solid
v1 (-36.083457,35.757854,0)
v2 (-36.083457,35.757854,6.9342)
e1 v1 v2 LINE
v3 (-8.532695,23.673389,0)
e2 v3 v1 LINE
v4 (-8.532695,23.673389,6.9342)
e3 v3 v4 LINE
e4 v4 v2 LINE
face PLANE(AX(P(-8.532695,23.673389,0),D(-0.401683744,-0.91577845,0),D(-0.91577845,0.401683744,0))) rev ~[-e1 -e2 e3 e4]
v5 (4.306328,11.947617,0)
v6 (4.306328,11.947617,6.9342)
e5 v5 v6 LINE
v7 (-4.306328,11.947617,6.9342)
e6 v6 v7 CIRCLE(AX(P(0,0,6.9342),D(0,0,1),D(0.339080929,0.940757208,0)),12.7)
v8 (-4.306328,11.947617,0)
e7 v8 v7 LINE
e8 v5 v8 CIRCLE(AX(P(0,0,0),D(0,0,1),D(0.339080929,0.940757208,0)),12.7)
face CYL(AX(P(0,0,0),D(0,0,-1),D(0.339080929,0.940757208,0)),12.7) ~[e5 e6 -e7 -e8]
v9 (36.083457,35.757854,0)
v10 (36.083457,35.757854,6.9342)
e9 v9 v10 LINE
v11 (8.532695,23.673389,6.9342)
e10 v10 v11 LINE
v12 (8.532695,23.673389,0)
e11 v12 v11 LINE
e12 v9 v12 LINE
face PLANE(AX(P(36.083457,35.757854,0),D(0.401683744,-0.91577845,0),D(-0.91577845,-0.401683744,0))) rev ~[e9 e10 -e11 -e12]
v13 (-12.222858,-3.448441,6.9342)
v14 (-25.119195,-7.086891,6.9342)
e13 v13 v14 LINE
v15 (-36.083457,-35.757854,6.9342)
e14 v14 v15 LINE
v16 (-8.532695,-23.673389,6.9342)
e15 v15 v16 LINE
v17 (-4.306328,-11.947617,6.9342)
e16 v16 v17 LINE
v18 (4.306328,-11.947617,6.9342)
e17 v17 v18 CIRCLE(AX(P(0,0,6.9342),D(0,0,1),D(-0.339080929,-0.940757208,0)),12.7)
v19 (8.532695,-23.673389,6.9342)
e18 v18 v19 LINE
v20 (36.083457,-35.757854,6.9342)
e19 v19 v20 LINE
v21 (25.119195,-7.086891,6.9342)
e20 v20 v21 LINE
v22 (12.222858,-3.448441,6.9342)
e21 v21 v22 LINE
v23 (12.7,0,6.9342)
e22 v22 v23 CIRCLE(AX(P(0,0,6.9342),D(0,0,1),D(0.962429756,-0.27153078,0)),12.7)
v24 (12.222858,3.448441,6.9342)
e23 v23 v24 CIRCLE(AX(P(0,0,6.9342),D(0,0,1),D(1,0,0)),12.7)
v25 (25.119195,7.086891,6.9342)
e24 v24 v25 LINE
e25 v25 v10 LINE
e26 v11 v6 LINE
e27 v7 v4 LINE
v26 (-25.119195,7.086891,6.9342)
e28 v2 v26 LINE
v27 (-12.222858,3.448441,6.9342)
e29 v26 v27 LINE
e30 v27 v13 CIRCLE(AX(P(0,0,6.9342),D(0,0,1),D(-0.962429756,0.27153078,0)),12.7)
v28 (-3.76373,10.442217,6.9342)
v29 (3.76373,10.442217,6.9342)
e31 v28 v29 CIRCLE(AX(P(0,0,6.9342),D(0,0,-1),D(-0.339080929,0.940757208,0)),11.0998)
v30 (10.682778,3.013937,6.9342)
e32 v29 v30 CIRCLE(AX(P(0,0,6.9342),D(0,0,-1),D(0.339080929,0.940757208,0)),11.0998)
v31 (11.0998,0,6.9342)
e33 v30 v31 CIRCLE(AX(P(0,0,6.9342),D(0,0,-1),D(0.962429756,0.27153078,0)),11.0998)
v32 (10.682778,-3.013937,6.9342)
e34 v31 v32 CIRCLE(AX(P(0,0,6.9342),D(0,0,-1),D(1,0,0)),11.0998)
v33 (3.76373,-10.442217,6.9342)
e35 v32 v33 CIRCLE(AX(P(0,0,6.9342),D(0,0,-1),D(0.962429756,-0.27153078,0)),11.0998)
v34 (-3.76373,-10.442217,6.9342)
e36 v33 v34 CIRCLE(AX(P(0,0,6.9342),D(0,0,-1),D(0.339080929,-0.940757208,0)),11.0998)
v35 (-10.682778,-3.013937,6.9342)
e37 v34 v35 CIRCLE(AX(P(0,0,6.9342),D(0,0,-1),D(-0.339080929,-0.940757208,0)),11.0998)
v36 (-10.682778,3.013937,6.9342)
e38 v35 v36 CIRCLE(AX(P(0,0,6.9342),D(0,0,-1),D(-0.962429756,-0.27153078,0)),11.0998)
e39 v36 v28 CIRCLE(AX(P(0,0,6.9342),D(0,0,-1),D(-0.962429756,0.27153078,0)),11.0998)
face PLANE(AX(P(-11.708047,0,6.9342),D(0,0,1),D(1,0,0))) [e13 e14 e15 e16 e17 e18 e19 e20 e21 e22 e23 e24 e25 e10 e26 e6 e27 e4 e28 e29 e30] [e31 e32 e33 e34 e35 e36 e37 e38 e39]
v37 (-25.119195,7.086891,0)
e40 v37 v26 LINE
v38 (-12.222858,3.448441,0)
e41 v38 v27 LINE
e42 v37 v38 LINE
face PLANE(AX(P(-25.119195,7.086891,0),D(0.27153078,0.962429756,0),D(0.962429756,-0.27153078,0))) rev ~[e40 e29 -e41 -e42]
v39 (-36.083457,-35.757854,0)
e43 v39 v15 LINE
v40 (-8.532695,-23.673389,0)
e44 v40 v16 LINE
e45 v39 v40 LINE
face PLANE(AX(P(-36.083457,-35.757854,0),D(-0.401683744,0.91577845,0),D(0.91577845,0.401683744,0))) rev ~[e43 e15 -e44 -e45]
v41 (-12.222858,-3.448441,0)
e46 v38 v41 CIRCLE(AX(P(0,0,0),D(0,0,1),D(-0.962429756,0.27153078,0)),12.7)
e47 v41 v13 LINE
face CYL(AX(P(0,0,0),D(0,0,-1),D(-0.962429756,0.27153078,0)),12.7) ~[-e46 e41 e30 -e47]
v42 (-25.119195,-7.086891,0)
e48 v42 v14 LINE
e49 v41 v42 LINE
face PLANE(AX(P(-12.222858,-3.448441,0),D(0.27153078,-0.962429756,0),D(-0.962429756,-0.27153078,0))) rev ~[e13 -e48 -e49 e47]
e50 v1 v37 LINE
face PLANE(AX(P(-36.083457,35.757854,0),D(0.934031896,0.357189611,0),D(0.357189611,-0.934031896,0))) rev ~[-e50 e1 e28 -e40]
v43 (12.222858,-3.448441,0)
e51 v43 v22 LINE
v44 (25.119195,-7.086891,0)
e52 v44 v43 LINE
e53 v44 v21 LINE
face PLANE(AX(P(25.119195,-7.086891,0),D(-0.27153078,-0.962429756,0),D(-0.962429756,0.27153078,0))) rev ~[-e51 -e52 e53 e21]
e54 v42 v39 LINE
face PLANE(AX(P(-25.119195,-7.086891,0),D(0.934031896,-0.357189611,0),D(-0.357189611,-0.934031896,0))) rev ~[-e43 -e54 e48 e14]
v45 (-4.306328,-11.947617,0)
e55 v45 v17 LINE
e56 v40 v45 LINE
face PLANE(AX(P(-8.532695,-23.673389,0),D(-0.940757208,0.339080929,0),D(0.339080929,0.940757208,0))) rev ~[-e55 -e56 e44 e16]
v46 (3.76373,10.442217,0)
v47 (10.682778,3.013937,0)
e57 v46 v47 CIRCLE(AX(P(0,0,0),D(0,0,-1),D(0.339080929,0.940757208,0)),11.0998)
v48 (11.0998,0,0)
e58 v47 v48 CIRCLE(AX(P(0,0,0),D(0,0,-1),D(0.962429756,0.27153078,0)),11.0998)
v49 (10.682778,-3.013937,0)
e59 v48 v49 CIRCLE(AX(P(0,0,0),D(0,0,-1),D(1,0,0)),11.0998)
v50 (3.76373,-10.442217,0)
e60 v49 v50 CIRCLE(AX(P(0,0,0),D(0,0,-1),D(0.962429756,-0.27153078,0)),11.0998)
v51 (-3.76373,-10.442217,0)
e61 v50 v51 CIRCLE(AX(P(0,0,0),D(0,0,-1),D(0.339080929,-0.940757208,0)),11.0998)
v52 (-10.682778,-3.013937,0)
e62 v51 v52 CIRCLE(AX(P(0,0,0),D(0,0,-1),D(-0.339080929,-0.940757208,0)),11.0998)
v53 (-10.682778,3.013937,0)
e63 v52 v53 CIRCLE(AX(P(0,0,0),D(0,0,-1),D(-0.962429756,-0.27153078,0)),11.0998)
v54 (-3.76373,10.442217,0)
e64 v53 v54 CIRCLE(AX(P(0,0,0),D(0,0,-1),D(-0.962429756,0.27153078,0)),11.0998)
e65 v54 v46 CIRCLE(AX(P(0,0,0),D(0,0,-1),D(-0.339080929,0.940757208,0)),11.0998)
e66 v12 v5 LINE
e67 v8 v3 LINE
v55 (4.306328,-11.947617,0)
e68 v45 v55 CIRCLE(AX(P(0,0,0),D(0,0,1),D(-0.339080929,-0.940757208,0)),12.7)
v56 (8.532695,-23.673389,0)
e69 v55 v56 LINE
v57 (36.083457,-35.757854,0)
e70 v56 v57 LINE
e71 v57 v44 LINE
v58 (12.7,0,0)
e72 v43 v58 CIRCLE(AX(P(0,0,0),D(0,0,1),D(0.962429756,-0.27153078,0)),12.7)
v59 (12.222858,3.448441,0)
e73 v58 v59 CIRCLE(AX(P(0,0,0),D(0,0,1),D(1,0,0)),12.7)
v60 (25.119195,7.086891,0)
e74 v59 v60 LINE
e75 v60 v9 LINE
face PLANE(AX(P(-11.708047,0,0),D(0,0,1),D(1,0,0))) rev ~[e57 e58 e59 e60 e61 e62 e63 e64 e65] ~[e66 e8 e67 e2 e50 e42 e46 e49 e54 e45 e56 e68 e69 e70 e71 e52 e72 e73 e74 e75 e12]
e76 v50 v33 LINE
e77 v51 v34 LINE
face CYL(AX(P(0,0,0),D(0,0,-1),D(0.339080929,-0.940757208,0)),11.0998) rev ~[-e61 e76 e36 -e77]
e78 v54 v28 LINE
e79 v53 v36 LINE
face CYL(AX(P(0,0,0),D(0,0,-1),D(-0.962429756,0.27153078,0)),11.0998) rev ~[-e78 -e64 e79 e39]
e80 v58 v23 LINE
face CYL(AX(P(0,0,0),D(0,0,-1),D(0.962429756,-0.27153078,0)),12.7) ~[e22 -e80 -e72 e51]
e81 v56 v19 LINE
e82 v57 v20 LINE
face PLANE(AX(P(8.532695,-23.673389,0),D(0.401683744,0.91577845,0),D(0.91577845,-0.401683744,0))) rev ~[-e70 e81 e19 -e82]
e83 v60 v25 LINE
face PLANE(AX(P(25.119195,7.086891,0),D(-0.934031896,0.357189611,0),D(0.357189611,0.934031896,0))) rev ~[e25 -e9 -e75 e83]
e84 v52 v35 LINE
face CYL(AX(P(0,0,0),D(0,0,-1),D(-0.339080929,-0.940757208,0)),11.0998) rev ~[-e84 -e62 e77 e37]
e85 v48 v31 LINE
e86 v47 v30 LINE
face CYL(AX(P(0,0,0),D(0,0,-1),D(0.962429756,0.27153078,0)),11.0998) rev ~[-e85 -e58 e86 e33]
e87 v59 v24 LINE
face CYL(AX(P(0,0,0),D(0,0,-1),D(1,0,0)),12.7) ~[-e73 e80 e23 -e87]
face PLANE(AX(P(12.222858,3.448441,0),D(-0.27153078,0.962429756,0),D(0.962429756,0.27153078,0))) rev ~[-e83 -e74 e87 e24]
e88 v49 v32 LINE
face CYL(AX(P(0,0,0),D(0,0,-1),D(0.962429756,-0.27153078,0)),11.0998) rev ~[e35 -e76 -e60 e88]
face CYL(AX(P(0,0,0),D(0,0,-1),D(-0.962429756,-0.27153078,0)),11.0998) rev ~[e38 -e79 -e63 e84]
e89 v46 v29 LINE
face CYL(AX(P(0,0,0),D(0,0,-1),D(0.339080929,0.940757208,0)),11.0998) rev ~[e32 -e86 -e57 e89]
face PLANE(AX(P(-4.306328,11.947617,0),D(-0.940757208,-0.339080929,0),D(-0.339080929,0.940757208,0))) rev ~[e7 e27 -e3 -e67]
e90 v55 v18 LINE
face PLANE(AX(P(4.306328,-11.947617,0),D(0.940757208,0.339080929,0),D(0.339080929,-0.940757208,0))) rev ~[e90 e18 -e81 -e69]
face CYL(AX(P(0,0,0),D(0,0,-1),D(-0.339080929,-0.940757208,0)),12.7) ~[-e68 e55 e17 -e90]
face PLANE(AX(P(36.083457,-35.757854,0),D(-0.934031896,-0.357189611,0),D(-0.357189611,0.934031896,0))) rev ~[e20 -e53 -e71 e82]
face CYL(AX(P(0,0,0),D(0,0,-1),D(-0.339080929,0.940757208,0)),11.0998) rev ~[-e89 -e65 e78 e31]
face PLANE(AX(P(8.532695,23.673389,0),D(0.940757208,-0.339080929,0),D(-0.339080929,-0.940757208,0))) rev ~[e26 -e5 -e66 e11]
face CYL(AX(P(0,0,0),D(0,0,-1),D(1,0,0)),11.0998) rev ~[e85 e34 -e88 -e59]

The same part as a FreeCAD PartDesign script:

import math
import FreeCAD as App
import Part
import Sketcher
from FreeCAD import Vector
Q = App.Units.Quantity

doc = App.newDocument("Part")
params = doc.addObject("Spreadsheet::Sheet", "Params")
for row, (alias, value) in enumerate([
    ("sketch1_radius", "0.5 in"),
    ("sketch1_radius2", "0.437 in"),
    ("pad1_length", "0.273 in"),
], start=1):
    params.set(f"A{row}", alias)
    params.set(f"B{row}", "=" + value)
    params.setAlias(f"B{row}", alias)

body = doc.addObject("PartDesign::Body", "Body")

# Sketch on XY plane
sketch1 = body.newObject("Sketcher::SketchObject", "Sketch")
sketch1.AttachmentSupport = (doc.getObject("XY_Plane"), [""])
sketch1.MapMode = "FlatFace"
sketch1.addGeometry(Part.ArcOfCircle(Part.Circle(Vector(0, 0, 0), Vector(0, 0, 1), 12.7), math.radians(-15.76), math.radians(0)), False)
sketch1.addGeometry(Part.ArcOfCircle(Part.Circle(Vector(0, 0, 0), Vector(0, 0, 1), 12.7), math.radians(0), math.radians(15.76)), False)
sketch1.addGeometry(Part.LineSegment(Vector(12.2, 3.4, 0), Vector(25.1, 7.1, 0)), False)
sketch1.addGeometry(Part.LineSegment(Vector(25.1, 7.1, 0), Vector(36.1, 35.8, 0)), False)
sketch1.addGeometry(Part.LineSegment(Vector(36.1, 35.8, 0), Vector(8.5, 23.7, 0)), False)
sketch1.addGeometry(Part.LineSegment(Vector(8.5, 23.7, 0), Vector(4.3, 11.9, 0)), False)
sketch1.addGeometry(Part.ArcOfCircle(Part.Circle(Vector(0, 0, 0), Vector(0, 0, 1), 12.7), math.radians(70), math.radians(110)), False)
sketch1.addGeometry(Part.LineSegment(Vector(-4.3, 11.9, 0), Vector(-8.5, 23.7, 0)), False)
sketch1.addGeometry(Part.LineSegment(Vector(-8.5, 23.7, 0), Vector(-36.1, 35.8, 0)), False)
sketch1.addGeometry(Part.LineSegment(Vector(-36.1, 35.8, 0), Vector(-25.1, 7.1, 0)), False)
sketch1.addGeometry(Part.LineSegment(Vector(-25.1, 7.1, 0), Vector(-12.2, 3.4, 0)), False)
sketch1.addGeometry(Part.ArcOfCircle(Part.Circle(Vector(0, 0, 0), Vector(0, 0, 1), 12.7), math.radians(164), math.radians(196)), False)
sketch1.addGeometry(Part.LineSegment(Vector(-12.2, -3.4, 0), Vector(-25.1, -7.1, 0)), False)
sketch1.addGeometry(Part.LineSegment(Vector(-25.1, -7.1, 0), Vector(-36.1, -35.8, 0)), False)
sketch1.addGeometry(Part.LineSegment(Vector(-36.1, -35.8, 0), Vector(-8.5, -23.7, 0)), False)
sketch1.addGeometry(Part.LineSegment(Vector(-8.5, -23.7, 0), Vector(-4.3, -11.9, 0)), False)
sketch1.addGeometry(Part.ArcOfCircle(Part.Circle(Vector(0, 0, 0), Vector(0, 0, 1), 12.7), math.radians(-110), math.radians(-70)), False)
sketch1.addGeometry(Part.LineSegment(Vector(4.3, -11.9, 0), Vector(8.5, -23.7, 0)), False)
sketch1.addGeometry(Part.LineSegment(Vector(8.5, -23.7, 0), Vector(36.1, -35.8, 0)), False)
sketch1.addGeometry(Part.LineSegment(Vector(36.1, -35.8, 0), Vector(25.1, -7.1, 0)), False)
sketch1.addGeometry(Part.LineSegment(Vector(25.1, -7.1, 0), Vector(12.2, -3.4, 0)), False)
sketch1.addGeometry(Part.ArcOfCircle(Part.Circle(Vector(0, 0, 0), Vector(0, 0, 1), 11.1), math.radians(164), math.radians(196)), False)
sketch1.addGeometry(Part.ArcOfCircle(Part.Circle(Vector(0, 0, 0), Vector(0, 0, 1), 11.1), math.radians(110), math.radians(164)), False)
sketch1.addGeometry(Part.ArcOfCircle(Part.Circle(Vector(0, 0, 0), Vector(0, 0, 1), 11.1), math.radians(70), math.radians(110)), False)
sketch1.addGeometry(Part.ArcOfCircle(Part.Circle(Vector(0, 0, 0), Vector(0, 0, 1), 11.1), math.radians(16), math.radians(70)), False)
sketch1.addGeometry(Part.ArcOfCircle(Part.Circle(Vector(0, 0, 0), Vector(0, 0, 1), 11.1), math.radians(0), math.radians(15.76)), False)
sketch1.addGeometry(Part.ArcOfCircle(Part.Circle(Vector(0, 0, 0), Vector(0, 0, 1), 11.1), math.radians(-15.76), math.radians(0)), False)
sketch1.addGeometry(Part.ArcOfCircle(Part.Circle(Vector(0, 0, 0), Vector(0, 0, 1), 11.1), math.radians(-70), math.radians(-16)), False)
sketch1.addGeometry(Part.ArcOfCircle(Part.Circle(Vector(0, 0, 0), Vector(0, 0, 1), 11.1), math.radians(-110), math.radians(-70)), False)
sketch1.addGeometry(Part.ArcOfCircle(Part.Circle(Vector(0, 0, 0), Vector(0, 0, 1), 11.1), math.radians(-164), math.radians(-110)), False)
sketch1.addConstraint(Sketcher.Constraint("Tangent", 0, 2, 1, 1))
sketch1.addConstraint(Sketcher.Constraint("Coincident", 1, 2, 2, 1))
sketch1.addConstraint(Sketcher.Constraint("Coincident", 2, 2, 3, 1))
sketch1.addConstraint(Sketcher.Constraint("Coincident", 3, 2, 4, 1))
sketch1.addConstraint(Sketcher.Constraint("Coincident", 4, 2, 5, 1))
sketch1.addConstraint(Sketcher.Constraint("Coincident", 5, 2, 6, 1))
sketch1.addConstraint(Sketcher.Constraint("Coincident", 6, 2, 7, 1))
sketch1.addConstraint(Sketcher.Constraint("Coincident", 7, 2, 8, 1))
sketch1.addConstraint(Sketcher.Constraint("Coincident", 8, 2, 9, 1))
sketch1.addConstraint(Sketcher.Constraint("Coincident", 9, 2, 10, 1))
sketch1.addConstraint(Sketcher.Constraint("Coincident", 10, 2, 11, 1))
sketch1.addConstraint(Sketcher.Constraint("Coincident", 11, 2, 12, 1))
sketch1.addConstraint(Sketcher.Constraint("Coincident", 12, 2, 13, 1))
sketch1.addConstraint(Sketcher.Constraint("Coincident", 13, 2, 14, 1))
sketch1.addConstraint(Sketcher.Constraint("Coincident", 14, 2, 15, 1))
sketch1.addConstraint(Sketcher.Constraint("Coincident", 15, 2, 16, 1))
sketch1.addConstraint(Sketcher.Constraint("Coincident", 16, 2, 17, 1))
sketch1.addConstraint(Sketcher.Constraint("Coincident", 17, 2, 18, 1))
sketch1.addConstraint(Sketcher.Constraint("Coincident", 18, 2, 19, 1))
sketch1.addConstraint(Sketcher.Constraint("Coincident", 19, 2, 20, 1))
sketch1.addConstraint(Sketcher.Constraint("Coincident", 20, 2, 0, 1))
sketch1.addConstraint(Sketcher.Constraint("Tangent", 21, 1, 22, 2))
sketch1.addConstraint(Sketcher.Constraint("Tangent", 22, 1, 23, 2))
sketch1.addConstraint(Sketcher.Constraint("Tangent", 23, 1, 24, 2))
sketch1.addConstraint(Sketcher.Constraint("Tangent", 24, 1, 25, 2))
sketch1.addConstraint(Sketcher.Constraint("Tangent", 25, 1, 26, 2))
sketch1.addConstraint(Sketcher.Constraint("Tangent", 26, 1, 27, 2))
sketch1.addConstraint(Sketcher.Constraint("Tangent", 27, 1, 28, 2))
sketch1.addConstraint(Sketcher.Constraint("Tangent", 28, 1, 29, 2))
sketch1.addConstraint(Sketcher.Constraint("Tangent", 29, 1, 21, 2))
sketch1.addConstraint(Sketcher.Constraint("Coincident", 0, 3, -1, 1))
sketch1.addConstraint(Sketcher.Constraint("Coincident", 6, 3, -1, 1))
sketch1.addConstraint(Sketcher.Constraint("Coincident", 11, 3, -1, 1))
sketch1.addConstraint(Sketcher.Constraint("Coincident", 16, 3, -1, 1))
sketch1.addConstraint(Sketcher.Constraint("Coincident", 21, 3, -1, 1))
sketch1.addConstraint(Sketcher.Constraint("Coincident", 23, 3, -1, 1))
sketch1.addConstraint(Sketcher.Constraint("Coincident", 25, 3, -1, 1))
sketch1.addConstraint(Sketcher.Constraint("Coincident", 27, 3, -1, 1))
sketch1.addConstraint(Sketcher.Constraint("Equal", 0, 1))
sketch1.addConstraint(Sketcher.Constraint("Equal", 1, 6))
sketch1.addConstraint(Sketcher.Constraint("Equal", 6, 11))
sketch1.addConstraint(Sketcher.Constraint("Equal", 11, 16))
sketch1.addConstraint(Sketcher.Constraint("Symmetric", 2, 2, 12, 2, -1, 1))
sketch1.addConstraint(Sketcher.Constraint("Symmetric", 3, 2, 13, 2, -1, 1))
sketch1.addConstraint(Sketcher.Constraint("Symmetric", 4, 2, 14, 2, -1, 1))
sketch1.addConstraint(Sketcher.Constraint("Symmetric", 7, 2, 17, 2, -1, 1))
sketch1.addConstraint(Sketcher.Constraint("Symmetric", 8, 2, 18, 2, -1, 1))
sketch1.addConstraint(Sketcher.Constraint("Symmetric", 9, 2, 19, 2, -1, 1))
sketch1.addConstraint(Sketcher.Constraint("Symmetric", 4, 2, 7, 2, -2))
sketch1.addConstraint(Sketcher.Constraint("Symmetric", 3, 2, 8, 2, -2))
sketch1.addConstraint(Sketcher.Constraint("Symmetric", 2, 2, 9, 2, -2))
sketch1.addConstraint(Sketcher.Constraint("PointOnObject", 0, 2, -1))
sketch1.addConstraint(Sketcher.Constraint("PointOnObject", 25, 1, -1))
sketch1.addConstraint(Sketcher.Constraint("Parallel", 2, 12))
sketch1.addConstraint(Sketcher.Constraint("Parallel", 5, 15))
sketch1.addConstraint(Sketcher.Constraint("Parallel", 7, 17))
sketch1.addConstraint(Sketcher.Constraint("Parallel", 10, 20))
sketch1.addConstraint(Sketcher.Constraint("Horizontal", 5, 2, 6, 2))
sketch1.addConstraint(Sketcher.Constraint("Horizontal", 1, 2, 10, 2))
sketch1.addConstraint(Sketcher.Constraint("Horizontal", 22, 1, 23, 1))
sketch1.addConstraint(Sketcher.Constraint("Horizontal", 21, 1, 24, 1))
sketch1.addConstraint(Sketcher.Constraint("Horizontal", 27, 1, 28, 1))
sketch1.addConstraint(Sketcher.Constraint("Horizontal", 26, 1, 29, 1))
sketch1.addConstraint(Sketcher.Constraint("Vertical", 24, 1, 26, 1))
sketch1.addConstraint(Sketcher.Constraint("Vertical", 23, 1, 27, 1))
sketch1.addConstraint(Sketcher.Constraint("Radius", 0, Q("0.5 in")))
sketch1.addConstraint(Sketcher.Constraint("Radius", 21, Q("0.437 in")))
sketch1.addConstraint(Sketcher.Constraint("DistanceX", 1, 2, 3, 2, Q("23.860599 mm")))
sketch1.addConstraint(Sketcher.Constraint("DistanceX", 4, 2, 2, 2, Q("16.586499 mm")))
sketch1.addConstraint(Sketcher.Constraint("DistanceY", 2, 2, 4, 2, Q("16.586498 mm")))
sketch1.addConstraint(Sketcher.Constraint("DistanceY", 22, 1, 6, 2, Q("1.5054 mm")))
sketch1.addConstraint(Sketcher.Constraint("Distance", 2, Q("13.399769 mm")))
sketch1.addConstraint(Sketcher.Constraint("DistanceY", -1, 1, 1, 2, Q("3.448441 mm")))
sketch1.addConstraint(Sketcher.Constraint("DistanceY", -1, 1, 2, 2, Q("7.086891 mm")))
sketch1.addConstraint(Sketcher.Constraint("DistanceX", 22, 1, -1, 1, Q("3.76373 mm")))
sketch1.addConstraint(Sketcher.Constraint("DistanceX", 10, 2, 21, 1, Q("1.54008 mm")))
sketch1.addConstraint(Sketcher.Constraint("Distance", 3, Q("30.695915 mm")))
sketch1.setExpression("Constraints[65]", "Params.sketch1_radius")
sketch1.setExpression("Constraints[66]", "Params.sketch1_radius2")
pad1 = body.newObject("PartDesign::Pad", "Pad")
pad1.Profile = sketch1
pad1.setExpression("Length", "Params.pad1_length")

doc.recompute()
